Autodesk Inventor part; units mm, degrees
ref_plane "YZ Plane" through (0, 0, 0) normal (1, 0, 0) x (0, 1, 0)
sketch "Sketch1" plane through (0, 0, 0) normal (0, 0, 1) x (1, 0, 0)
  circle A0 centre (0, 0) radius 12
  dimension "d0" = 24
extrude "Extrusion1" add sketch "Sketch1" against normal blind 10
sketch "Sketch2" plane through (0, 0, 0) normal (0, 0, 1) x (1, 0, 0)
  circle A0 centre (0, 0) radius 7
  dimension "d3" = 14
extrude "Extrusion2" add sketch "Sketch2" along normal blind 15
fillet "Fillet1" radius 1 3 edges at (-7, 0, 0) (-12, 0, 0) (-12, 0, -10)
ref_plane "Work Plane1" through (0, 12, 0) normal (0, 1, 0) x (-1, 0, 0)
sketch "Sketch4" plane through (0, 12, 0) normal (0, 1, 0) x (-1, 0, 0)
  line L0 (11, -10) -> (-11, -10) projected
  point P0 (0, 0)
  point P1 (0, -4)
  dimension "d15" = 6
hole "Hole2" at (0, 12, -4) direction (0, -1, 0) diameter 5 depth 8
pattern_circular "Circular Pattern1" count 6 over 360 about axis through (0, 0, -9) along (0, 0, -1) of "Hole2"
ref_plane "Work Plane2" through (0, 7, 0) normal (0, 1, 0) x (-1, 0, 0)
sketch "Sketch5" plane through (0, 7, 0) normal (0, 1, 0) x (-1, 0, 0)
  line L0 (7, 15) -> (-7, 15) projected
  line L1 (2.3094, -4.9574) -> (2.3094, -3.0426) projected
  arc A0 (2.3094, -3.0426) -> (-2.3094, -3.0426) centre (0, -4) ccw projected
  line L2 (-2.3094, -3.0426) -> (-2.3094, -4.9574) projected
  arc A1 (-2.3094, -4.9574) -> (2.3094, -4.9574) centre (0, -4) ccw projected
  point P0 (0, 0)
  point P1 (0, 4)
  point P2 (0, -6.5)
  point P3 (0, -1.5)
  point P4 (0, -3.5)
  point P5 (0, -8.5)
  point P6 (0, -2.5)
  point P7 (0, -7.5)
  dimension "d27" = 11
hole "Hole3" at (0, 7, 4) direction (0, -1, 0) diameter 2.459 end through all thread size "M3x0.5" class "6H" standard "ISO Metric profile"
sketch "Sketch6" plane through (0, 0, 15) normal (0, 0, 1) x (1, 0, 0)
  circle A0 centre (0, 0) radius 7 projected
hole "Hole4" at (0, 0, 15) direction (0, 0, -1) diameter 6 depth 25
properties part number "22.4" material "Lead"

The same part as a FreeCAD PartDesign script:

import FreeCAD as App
import Part
import Sketcher
from FreeCAD import Vector


def edges_at(feature, points):
    """Names of the edges that pass closest to the given points."""
    edges = feature.Shape.Edges
    near = lambda p: min(range(len(edges)), key=lambda i: edges[i].distToShape(Part.Vertex(*p))[0])
    return sorted({f"Edge{near(p) + 1}" for p in points})

doc = App.newDocument("Part")
params = doc.addObject("Spreadsheet::Sheet", "Params")
for row, (alias, value) in enumerate([
    ("sketch1_diameter", "24 mm"),
    ("pad1_length", "10 mm"),
    ("sketch2_diameter", "14 mm"),
    ("pad2_length", "15 mm"),
    ("fillet_radius", "1 mm"),
    ("sketch3_diameter", "5 mm"),
    ("hole_diameter", "5 mm"),
    ("hole_depth", "8 mm"),
    ("hole2_diameter", "2.459 mm"),
    ("sketch5_diameter", "6 mm"),
    ("hole3_diameter", "6 mm"),
    ("hole3_depth", "25 mm"),
], start=1):
    params.set(f"A{row}", alias)
    params.set(f"B{row}", "=" + value)
    params.setAlias(f"B{row}", alias)

body = doc.addObject("PartDesign::Body", "Body")

# Sketch on XY plane
sketch1 = body.newObject("Sketcher::SketchObject", "Sketch")
sketch1.AttachmentSupport = (doc.getObject("XY_Plane"), [""])
sketch1.MapMode = "FlatFace"
sketch1.addGeometry(Part.Circle(Vector(0, 0, 0), Vector(0, 0, 1), 12), False)
sketch1.addConstraint(Sketcher.Constraint("Coincident", 0, 3, -1, 1))
sketch1.addConstraint(Sketcher.Constraint("Diameter", 0, 24.0))
sketch1.setExpression("Constraints[1]", "Params.sketch1_diameter")
pad1 = body.newObject("PartDesign::Pad", "Pad")
pad1.Profile = sketch1
pad1.setExpression("Length", "Params.pad1_length")
pad1.Reversed = True

# Sketch on XY plane
sketch2 = body.newObject("Sketcher::SketchObject", "Sketch001")
sketch2.AttachmentSupport = (doc.getObject("XY_Plane"), [""])
sketch2.MapMode = "FlatFace"
sketch2.addGeometry(Part.Circle(Vector(0, 0, 0), Vector(0, 0, 1), 7), False)
sketch2.addConstraint(Sketcher.Constraint("Coincident", 0, 3, -1, 1))
sketch2.addConstraint(Sketcher.Constraint("Diameter", 0, 14.0))
sketch2.setExpression("Constraints[1]", "Params.sketch2_diameter")
pad2 = body.newObject("PartDesign::Pad", "Pad001")
pad2.Profile = sketch2
pad2.setExpression("Length", "Params.pad2_length")
doc.recompute()

fillet = body.newObject("PartDesign::Fillet", "Fillet")
fillet.Base = (pad2, edges_at(pad2, [(-7, 0, 0), (-12, 0, 0), (-12, 0, -10)]))
fillet.setExpression("Radius", "Params.fillet_radius")

# Sketch on XZ plane
sketch3 = body.newObject("Sketcher::SketchObject", "Sketch002")
sketch3.AttachmentSupport = (doc.getObject("XZ_Plane"), [""])
sketch3.MapMode = "FlatFace"
sketch3.AttachmentOffset = App.Placement(Vector(0, 0, -12), App.Rotation())
sketch3.addGeometry(Part.Circle(Vector(0, -4, 0), Vector(0, 0, 1), 2.5), False)
sketch3.addConstraint(Sketcher.Constraint("PointOnObject", 0, 3, -2))
sketch3.addConstraint(Sketcher.Constraint("Diameter", 0, 5.0))
sketch3.addConstraint(Sketcher.Constraint("DistanceY", 0, 3, -1, 1, 4.0))
sketch3.setExpression("Constraints[1]", "Params.sketch3_diameter")
doc.recompute()
hole = body.newObject("PartDesign::Hole", "Hole")
hole.Profile = sketch3
hole.ThreadType = "None"
hole.setExpression("Diameter", "Params.hole_diameter")
hole.DepthType = "Dimension"
hole.setExpression("Depth", "Params.hole_depth")
hole.DrillPoint = "Flat"
hole.Reversed = True
doc.recompute()

polarpattern = body.newObject("PartDesign::PolarPattern", "PolarPattern")
polarpattern.Originals = [hole]
polarpattern.Axis = (doc.getObject("Z_Axis"), [""])
polarpattern.Angle = 360
polarpattern.Occurrences = 6
body.Tip = polarpattern

# Sketch on XZ plane
sketch4 = body.newObject("Sketcher::SketchObject", "Sketch003")
sketch4.AttachmentSupport = (doc.getObject("XZ_Plane"), [""])
sketch4.MapMode = "FlatFace"
sketch4.AttachmentOffset = App.Placement(Vector(0, 0, -7), App.Rotation())
sketch4.addGeometry(Part.Circle(Vector(0, 4, 0), Vector(0, 0, 1), 1.2295), False)
sketch4.addConstraint(Sketcher.Constraint("PointOnObject", 0, 3, -2))
sketch4.addConstraint(Sketcher.Constraint("Diameter", 0, 2.459))
sketch4.addConstraint(Sketcher.Constraint("DistanceY", -1, 1, 0, 3, 4.0))
doc.recompute()
hole2 = body.newObject("PartDesign::Hole", "Hole001")
hole2.Profile = sketch4
hole2.ThreadType = "None"
hole2.setExpression("Diameter", "Params.hole2_diameter")
hole2.DepthType = "ThroughAll"
hole2.Reversed = True

# Sketch on XY plane
sketch5 = body.newObject("Sketcher::SketchObject", "Sketch004")
sketch5.AttachmentSupport = (doc.getObject("XY_Plane"), [""])
sketch5.MapMode = "FlatFace"
sketch5.AttachmentOffset = App.Placement(Vector(0, 0, 15), App.Rotation())
sketch5.addGeometry(Part.Circle(Vector(0, 0, 0), Vector(0, 0, 1), 3), False)
sketch5.addConstraint(Sketcher.Constraint("Coincident", 0, 3, -1, 1))
sketch5.addConstraint(Sketcher.Constraint("Diameter", 0, 6.0))
sketch5.setExpression("Constraints[1]", "Params.sketch5_diameter")
doc.recompute()
hole3 = body.newObject("PartDesign::Hole", "Hole002")
hole3.Profile = sketch5
hole3.ThreadType = "None"
hole3.setExpression("Diameter", "Params.hole3_diameter")
hole3.DepthType = "Dimension"
hole3.setExpression("Depth", "Params.hole3_depth")
hole3.DrillPoint = "Flat"

doc.recompute()
